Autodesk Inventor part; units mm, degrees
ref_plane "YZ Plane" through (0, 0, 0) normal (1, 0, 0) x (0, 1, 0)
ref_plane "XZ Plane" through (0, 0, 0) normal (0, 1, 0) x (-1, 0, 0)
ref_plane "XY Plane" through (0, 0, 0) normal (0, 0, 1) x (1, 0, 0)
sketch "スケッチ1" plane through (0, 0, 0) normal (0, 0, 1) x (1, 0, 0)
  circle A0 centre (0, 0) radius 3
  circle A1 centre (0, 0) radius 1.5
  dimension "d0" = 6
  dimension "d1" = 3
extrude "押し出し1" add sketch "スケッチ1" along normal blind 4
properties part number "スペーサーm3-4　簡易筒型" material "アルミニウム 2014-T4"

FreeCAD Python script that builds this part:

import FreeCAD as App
import Part
import Sketcher

doc = App.newDocument("Part")
params = doc.addObject("Spreadsheet::Sheet", "Params")
for row, (alias, value) in enumerate([
    ("sketch1_diameter", "6 mm"),
    ("sketch1_diameter2", "3 mm"),
    ("pad1_length", "4 mm"),
], start=1):
    params.set(f"A{row}", alias)
    params.set(f"B{row}", "=" + value)
    params.setAlias(f"B{row}", alias)

body = doc.addObject("PartDesign::Body", "Body")

# Sketch on XY plane
sketch1 = body.newObject("Sketcher::SketchObject", "Sketch")
sketch1.AttachmentSupport = (doc.getObject("XY_Plane"), [""])
sketch1.MapMode = "FlatFace"
sketch1.addGeometry([
    Part.Circle(App.Vector(0, 0, 0), App.Vector(0, 0, 1), 3),
    Part.Circle(App.Vector(0, 0, 0), App.Vector(0, 0, 1), 1.5),
], False)
sketch1.addConstraint([
    Sketcher.Constraint("Coincident", 0, 3, -1, 1),
    Sketcher.Constraint("Coincident", 1, 3, -1, 1),
    Sketcher.Constraint("Diameter", 0, 6.0),
    Sketcher.Constraint("Diameter", 1, 3.0),
])
sketch1.setExpression("Constraints[2]", "Params.sketch1_diameter")
sketch1.setExpression("Constraints[3]", "Params.sketch1_diameter2")
pad1 = body.newObject("PartDesign::Pad", "Pad")
pad1.Profile = sketch1
pad1.setExpression("Length", "Params.pad1_length")

doc.recompute()
